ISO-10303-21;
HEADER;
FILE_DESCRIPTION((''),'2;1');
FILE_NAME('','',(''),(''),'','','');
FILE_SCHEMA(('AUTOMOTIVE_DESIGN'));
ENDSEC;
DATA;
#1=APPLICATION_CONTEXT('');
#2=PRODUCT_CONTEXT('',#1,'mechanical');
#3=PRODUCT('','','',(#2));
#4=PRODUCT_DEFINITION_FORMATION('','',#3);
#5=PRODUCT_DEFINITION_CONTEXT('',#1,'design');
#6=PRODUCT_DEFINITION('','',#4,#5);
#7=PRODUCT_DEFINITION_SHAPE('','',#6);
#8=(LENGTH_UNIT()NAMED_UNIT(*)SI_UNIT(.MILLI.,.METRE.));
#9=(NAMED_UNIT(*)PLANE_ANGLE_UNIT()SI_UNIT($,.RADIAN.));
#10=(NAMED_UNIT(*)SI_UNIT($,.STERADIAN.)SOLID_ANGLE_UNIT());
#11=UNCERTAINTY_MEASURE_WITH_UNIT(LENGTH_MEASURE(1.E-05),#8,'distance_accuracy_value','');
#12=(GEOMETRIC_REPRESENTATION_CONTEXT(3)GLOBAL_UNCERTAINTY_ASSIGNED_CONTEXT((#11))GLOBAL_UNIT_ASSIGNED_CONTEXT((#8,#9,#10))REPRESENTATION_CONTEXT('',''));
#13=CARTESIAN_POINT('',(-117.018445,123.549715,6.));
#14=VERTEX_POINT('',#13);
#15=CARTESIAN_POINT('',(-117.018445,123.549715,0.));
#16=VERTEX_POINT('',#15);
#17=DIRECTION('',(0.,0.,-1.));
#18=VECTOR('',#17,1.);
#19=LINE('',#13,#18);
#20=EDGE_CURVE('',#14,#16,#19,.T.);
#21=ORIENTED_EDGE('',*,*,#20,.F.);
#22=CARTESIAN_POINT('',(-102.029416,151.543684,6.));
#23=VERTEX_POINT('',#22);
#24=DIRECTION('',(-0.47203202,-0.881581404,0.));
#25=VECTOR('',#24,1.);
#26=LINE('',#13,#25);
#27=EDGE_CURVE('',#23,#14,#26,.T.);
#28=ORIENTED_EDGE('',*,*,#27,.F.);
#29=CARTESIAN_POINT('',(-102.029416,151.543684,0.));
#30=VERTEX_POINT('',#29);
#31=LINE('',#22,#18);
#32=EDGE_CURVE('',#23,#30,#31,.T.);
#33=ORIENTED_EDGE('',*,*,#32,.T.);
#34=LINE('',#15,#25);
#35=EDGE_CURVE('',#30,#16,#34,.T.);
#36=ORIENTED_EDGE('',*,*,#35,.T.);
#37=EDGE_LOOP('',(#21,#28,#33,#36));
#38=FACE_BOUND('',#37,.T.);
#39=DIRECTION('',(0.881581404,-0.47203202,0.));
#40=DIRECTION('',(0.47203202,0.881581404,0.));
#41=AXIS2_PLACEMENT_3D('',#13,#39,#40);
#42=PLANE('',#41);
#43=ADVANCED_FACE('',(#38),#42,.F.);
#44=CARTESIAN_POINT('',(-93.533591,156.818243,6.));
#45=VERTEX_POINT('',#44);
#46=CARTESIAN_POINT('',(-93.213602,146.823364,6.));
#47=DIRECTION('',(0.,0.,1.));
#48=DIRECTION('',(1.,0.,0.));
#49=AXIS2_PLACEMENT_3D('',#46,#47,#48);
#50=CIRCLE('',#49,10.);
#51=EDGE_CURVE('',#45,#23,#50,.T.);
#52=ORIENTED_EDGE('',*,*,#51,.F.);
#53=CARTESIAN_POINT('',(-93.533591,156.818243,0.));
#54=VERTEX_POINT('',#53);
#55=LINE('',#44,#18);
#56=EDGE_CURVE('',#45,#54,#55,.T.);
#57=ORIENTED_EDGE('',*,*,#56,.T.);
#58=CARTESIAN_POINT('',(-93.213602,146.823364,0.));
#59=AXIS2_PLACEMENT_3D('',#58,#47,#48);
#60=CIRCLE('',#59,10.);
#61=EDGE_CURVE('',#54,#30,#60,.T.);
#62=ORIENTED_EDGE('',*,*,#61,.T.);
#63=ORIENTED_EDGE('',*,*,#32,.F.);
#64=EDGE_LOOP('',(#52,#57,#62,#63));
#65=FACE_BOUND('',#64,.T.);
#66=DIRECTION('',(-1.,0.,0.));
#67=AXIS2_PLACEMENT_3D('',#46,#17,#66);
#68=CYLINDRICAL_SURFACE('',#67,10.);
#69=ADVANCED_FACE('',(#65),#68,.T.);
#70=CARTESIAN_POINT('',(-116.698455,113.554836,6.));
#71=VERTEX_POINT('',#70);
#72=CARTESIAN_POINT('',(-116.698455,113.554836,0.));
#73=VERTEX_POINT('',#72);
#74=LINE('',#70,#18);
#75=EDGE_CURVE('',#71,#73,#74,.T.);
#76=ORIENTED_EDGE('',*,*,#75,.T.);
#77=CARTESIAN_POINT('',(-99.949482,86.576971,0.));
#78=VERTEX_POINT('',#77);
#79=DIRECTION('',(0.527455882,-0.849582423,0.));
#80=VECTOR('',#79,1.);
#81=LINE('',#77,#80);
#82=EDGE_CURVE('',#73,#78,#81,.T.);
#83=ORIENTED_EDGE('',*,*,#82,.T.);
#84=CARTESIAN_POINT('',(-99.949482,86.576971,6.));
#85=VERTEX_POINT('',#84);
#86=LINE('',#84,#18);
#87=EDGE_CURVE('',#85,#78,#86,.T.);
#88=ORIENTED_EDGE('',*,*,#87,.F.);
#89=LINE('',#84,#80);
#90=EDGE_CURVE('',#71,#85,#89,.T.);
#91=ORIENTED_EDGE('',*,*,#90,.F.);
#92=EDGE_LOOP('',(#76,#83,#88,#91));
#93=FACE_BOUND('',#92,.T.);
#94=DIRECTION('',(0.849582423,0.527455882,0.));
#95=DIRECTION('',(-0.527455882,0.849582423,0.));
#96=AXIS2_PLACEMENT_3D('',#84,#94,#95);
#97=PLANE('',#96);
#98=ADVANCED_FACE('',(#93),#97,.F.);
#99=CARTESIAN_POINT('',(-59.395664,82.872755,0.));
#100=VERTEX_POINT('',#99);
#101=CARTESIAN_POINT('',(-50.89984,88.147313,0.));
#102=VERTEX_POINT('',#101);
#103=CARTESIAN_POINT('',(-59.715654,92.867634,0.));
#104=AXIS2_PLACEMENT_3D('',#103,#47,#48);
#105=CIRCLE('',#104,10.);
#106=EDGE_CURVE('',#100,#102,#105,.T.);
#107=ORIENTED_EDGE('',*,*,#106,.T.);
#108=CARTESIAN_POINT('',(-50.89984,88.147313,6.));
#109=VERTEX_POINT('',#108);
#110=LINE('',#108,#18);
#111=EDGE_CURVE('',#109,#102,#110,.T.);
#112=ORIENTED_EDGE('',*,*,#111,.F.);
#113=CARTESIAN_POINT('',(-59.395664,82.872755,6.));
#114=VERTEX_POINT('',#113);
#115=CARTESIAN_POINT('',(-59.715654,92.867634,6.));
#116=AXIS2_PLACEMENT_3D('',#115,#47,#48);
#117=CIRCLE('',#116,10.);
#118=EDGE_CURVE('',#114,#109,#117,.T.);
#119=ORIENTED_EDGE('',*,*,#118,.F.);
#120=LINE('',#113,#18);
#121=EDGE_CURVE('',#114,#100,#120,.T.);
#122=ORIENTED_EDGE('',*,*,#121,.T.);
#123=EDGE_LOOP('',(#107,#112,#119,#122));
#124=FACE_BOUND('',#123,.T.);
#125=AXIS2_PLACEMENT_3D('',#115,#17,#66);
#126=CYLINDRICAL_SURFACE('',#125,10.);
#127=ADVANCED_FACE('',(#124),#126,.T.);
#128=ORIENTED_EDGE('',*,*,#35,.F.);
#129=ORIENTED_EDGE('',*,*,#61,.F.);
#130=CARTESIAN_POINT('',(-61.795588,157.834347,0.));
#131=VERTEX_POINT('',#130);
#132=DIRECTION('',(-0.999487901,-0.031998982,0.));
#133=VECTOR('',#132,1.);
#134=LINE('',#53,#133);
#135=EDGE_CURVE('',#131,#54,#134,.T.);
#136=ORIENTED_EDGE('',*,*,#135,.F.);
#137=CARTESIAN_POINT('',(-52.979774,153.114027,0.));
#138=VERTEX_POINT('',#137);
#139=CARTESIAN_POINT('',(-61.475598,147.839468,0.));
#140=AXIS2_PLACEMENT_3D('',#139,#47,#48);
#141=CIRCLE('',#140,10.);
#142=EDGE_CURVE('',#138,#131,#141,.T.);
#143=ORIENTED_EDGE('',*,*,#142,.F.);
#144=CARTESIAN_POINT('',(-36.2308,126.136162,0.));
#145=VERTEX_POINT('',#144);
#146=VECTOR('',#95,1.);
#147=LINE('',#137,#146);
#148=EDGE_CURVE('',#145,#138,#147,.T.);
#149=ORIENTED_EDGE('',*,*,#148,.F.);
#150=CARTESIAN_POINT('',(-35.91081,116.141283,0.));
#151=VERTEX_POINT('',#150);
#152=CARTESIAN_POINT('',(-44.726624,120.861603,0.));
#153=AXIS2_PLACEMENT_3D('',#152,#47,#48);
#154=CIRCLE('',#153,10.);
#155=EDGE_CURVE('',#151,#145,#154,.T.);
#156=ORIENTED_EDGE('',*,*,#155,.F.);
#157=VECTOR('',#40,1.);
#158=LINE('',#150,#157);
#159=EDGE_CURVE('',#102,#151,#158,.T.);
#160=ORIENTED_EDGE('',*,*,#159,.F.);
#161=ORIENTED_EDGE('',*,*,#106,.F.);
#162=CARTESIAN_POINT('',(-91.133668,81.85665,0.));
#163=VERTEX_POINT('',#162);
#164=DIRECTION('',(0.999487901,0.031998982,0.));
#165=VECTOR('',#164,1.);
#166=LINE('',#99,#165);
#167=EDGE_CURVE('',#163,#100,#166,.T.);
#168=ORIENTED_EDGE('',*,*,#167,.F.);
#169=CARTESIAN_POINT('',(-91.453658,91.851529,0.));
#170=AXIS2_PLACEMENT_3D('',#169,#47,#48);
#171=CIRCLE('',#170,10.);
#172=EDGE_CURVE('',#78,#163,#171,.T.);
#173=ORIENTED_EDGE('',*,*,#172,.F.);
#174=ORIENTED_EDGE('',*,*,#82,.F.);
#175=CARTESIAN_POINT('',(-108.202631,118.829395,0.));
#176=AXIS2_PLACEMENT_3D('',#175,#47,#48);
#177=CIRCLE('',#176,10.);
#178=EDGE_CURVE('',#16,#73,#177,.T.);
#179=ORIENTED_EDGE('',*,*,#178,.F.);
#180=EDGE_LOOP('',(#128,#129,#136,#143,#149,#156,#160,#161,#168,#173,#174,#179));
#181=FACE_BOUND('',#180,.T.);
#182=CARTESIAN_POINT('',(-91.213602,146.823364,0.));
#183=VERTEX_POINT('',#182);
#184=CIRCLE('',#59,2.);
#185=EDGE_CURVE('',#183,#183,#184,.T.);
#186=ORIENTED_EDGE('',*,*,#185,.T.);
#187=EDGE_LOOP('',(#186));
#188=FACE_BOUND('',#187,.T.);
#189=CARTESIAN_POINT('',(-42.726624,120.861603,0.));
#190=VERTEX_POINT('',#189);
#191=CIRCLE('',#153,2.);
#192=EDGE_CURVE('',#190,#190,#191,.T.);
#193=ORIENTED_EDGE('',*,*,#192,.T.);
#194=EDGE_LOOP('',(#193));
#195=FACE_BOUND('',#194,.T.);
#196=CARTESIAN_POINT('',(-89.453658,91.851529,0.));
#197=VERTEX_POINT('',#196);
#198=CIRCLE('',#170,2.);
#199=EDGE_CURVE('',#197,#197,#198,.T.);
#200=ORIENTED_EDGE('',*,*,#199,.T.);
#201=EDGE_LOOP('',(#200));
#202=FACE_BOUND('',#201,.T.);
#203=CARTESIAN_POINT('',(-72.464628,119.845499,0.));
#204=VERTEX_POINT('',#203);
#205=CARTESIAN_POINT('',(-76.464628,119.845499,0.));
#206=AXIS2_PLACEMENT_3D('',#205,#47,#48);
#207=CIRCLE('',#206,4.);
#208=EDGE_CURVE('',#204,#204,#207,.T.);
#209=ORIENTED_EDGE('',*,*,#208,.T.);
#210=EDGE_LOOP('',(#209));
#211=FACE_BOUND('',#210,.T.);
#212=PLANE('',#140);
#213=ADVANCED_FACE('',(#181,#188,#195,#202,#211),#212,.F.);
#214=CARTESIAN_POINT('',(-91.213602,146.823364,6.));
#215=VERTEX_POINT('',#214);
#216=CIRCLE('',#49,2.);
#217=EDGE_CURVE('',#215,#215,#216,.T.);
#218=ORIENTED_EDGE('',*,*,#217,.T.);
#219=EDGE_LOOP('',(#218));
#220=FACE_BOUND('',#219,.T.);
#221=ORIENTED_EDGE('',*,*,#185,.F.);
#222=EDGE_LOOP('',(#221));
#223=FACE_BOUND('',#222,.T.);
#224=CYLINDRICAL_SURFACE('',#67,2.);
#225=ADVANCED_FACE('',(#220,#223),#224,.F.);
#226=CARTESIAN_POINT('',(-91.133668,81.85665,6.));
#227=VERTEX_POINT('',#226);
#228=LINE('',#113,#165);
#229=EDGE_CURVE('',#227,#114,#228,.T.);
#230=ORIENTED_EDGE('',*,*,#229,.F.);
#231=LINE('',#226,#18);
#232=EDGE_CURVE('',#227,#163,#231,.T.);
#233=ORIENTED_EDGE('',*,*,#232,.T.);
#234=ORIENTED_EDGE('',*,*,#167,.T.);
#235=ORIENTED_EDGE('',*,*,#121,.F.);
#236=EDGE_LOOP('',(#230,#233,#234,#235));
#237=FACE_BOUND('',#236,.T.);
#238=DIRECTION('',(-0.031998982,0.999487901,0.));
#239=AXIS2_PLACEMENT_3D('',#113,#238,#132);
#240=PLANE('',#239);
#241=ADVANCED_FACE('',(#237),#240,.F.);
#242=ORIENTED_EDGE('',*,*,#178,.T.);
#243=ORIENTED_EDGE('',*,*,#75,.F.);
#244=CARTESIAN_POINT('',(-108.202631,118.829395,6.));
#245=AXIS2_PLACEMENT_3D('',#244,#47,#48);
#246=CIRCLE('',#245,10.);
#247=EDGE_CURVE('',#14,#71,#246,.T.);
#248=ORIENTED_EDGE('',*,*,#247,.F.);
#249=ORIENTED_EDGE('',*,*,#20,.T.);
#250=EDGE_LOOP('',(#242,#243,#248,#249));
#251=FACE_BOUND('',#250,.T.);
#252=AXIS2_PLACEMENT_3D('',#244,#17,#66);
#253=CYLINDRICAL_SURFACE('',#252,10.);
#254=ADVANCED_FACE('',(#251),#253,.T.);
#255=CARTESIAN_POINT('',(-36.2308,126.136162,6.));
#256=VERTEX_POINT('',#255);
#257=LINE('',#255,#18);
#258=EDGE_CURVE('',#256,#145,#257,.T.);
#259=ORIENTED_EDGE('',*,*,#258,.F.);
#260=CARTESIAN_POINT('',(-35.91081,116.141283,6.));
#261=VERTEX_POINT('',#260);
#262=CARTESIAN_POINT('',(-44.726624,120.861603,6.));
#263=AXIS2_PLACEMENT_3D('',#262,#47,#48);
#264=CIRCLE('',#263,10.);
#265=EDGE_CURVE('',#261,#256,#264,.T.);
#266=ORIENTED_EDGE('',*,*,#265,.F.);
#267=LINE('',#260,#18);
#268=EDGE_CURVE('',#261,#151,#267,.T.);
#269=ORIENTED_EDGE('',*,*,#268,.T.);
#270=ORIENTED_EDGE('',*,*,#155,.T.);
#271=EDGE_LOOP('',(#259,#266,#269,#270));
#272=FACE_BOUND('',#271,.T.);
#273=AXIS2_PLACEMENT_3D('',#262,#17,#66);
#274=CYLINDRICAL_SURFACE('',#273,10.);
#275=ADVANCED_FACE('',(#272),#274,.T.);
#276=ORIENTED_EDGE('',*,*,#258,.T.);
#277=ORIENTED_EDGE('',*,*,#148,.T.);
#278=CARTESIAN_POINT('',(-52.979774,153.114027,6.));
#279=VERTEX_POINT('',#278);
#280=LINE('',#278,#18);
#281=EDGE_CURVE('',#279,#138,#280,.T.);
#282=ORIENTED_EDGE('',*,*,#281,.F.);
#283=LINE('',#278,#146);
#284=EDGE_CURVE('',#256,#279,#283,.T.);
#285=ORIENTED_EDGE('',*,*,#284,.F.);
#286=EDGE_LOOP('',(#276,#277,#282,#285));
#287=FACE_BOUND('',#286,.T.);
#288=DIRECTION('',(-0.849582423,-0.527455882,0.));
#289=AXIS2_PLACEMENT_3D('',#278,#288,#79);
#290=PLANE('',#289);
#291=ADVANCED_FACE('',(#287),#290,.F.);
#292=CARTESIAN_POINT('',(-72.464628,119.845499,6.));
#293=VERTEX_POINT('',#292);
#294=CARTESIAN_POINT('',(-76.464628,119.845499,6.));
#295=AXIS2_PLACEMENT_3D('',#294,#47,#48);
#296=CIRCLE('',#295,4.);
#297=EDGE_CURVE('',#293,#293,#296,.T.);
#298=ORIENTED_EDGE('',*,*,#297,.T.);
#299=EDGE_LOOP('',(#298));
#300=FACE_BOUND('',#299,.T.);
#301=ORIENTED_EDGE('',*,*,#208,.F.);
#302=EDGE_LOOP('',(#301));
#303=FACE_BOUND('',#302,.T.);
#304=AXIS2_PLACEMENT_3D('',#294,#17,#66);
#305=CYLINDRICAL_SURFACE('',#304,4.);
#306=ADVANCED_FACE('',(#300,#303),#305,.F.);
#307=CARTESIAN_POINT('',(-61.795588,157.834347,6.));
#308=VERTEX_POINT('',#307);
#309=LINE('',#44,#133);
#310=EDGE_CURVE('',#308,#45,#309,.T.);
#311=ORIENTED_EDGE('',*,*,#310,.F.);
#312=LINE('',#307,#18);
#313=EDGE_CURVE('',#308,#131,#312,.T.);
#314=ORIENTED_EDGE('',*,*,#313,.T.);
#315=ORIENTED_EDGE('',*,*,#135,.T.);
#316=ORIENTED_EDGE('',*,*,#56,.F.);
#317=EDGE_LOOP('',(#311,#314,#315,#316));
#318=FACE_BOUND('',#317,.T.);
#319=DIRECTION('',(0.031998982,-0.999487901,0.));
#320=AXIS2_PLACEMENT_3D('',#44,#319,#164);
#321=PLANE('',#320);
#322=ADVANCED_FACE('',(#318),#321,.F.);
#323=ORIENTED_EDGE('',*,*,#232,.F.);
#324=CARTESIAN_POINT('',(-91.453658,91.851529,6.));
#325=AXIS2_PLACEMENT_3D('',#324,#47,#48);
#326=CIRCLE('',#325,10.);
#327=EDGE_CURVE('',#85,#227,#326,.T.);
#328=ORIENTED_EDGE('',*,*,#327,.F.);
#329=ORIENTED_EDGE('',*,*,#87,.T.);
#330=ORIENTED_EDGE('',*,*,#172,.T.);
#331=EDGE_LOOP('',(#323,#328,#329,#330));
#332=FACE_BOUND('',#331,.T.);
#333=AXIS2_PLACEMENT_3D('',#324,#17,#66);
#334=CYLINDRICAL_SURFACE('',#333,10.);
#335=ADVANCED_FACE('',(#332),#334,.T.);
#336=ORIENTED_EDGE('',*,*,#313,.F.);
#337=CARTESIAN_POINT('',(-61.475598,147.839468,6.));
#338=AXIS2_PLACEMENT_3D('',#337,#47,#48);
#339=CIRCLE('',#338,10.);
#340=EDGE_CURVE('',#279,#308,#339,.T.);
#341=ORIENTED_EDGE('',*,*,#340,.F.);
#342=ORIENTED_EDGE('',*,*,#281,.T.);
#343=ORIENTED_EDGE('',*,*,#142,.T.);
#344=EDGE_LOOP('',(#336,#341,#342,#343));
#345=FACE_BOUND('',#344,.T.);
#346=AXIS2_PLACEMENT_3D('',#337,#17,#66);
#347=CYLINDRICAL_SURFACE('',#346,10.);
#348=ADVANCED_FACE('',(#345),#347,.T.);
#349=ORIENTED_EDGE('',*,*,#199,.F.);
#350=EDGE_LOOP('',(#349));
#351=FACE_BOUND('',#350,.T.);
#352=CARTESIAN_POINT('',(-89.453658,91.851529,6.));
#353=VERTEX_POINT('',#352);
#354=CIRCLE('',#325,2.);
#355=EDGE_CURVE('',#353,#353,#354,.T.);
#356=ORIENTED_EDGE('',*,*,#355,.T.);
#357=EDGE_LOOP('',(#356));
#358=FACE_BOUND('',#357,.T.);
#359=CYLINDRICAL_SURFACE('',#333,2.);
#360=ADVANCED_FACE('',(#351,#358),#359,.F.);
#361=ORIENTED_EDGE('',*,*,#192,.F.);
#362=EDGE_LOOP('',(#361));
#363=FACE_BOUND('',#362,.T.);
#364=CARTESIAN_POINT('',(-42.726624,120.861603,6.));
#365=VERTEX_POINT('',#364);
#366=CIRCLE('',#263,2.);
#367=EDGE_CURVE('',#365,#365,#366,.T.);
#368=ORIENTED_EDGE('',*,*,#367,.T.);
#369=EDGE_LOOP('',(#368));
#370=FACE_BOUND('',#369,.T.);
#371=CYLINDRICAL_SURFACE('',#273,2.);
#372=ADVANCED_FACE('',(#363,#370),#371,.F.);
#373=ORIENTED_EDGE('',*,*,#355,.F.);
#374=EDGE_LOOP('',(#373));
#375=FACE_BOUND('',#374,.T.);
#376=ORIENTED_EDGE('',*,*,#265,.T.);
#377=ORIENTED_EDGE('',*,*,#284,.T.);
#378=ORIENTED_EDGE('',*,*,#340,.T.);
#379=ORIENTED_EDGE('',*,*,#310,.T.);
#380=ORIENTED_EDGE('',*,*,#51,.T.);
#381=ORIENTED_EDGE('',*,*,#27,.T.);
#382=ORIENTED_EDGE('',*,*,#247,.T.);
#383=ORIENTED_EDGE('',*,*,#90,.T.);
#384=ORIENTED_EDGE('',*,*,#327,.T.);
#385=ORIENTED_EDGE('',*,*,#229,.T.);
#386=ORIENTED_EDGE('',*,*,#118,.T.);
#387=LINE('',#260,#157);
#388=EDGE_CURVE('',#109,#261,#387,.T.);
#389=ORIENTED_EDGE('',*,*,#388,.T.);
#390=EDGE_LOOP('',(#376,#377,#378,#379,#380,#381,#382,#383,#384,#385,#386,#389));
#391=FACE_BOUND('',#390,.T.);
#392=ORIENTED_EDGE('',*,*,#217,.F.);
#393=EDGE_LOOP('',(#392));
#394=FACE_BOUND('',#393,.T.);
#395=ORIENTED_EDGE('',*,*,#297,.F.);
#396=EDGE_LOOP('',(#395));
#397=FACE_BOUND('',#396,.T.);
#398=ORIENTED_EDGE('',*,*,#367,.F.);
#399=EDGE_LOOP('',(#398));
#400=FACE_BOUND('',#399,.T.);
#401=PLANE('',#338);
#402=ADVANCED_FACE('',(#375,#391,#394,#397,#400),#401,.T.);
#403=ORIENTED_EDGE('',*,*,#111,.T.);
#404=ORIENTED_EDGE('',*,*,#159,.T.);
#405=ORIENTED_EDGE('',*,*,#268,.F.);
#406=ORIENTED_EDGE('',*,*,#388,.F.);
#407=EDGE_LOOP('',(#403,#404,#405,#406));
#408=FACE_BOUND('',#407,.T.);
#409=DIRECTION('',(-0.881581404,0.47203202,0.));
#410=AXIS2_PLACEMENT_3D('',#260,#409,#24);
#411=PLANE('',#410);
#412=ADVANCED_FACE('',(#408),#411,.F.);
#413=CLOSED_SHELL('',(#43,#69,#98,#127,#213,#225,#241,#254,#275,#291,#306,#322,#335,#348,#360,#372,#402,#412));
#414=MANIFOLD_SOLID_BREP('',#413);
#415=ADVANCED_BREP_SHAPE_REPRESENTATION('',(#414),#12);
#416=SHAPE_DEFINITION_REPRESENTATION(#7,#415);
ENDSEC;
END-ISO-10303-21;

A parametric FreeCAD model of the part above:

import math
import FreeCAD as App
import Part
import Sketcher

V = App.Vector
Q = App.Units.Quantity

doc = App.newDocument("Part")
body = doc.addObject("PartDesign::Body", "Body")

sketch1 = body.newObject("Sketcher::SketchObject", "Sketch")
sketch1.AttachmentSupport = (doc.getObject("XY_Plane"), [""])
sketch1.MapMode = "FlatFace"
sketch1.addGeometry([
    Part.LineSegment(V(-36.2308, 126.136162, 0), V(-52.979774, 153.114027, 0)),
    Part.ArcOfCircle(Part.Circle(V(-61.475598, 147.839468, 0), V(0, 0, 1), 10), math.radians(31.83372), math.radians(91.83372)),
    Part.LineSegment(V(-61.795588, 157.834347, 0), V(-93.533591, 156.818243, 0)),
    Part.ArcOfCircle(Part.Circle(V(-93.213602, 146.823364, 0), V(0, 0, 1), 10), math.radians(91.83372), math.radians(151.83372)),
    Part.LineSegment(V(-102.029416, 151.543684, 0), V(-117.018445, 123.549715, 0)),
    Part.ArcOfCircle(Part.Circle(V(-108.202631, 118.829395, 0), V(0, 0, 1), 10), math.radians(151.83372), math.radians(211.83372)),
    Part.LineSegment(V(-116.698455, 113.554836, 0), V(-99.949482, 86.576971, 0)),
    Part.ArcOfCircle(Part.Circle(V(-91.453658, 91.851529, 0), V(0, 0, 1), 10), math.radians(-148.16628), math.radians(-88.16628)),
    Part.LineSegment(V(-91.133668, 81.85665, 0), V(-59.395664, 82.872755, 0)),
    Part.ArcOfCircle(Part.Circle(V(-59.715654, 92.867634, 0), V(0, 0, 1), 10), math.radians(-88.16628), math.radians(-28.16628)),
    Part.LineSegment(V(-50.89984, 88.147313, 0), V(-35.91081, 116.141283, 0)),
    Part.ArcOfCircle(Part.Circle(V(-44.726624, 120.861603, 0), V(0, 0, 1), 10), math.radians(-28.16628), math.radians(31.83372)),
    Part.Circle(V(-91.453658, 91.851529, 0), V(0, 0, 1), 2),
    Part.Circle(V(-44.726624, 120.861603, 0), V(0, 0, 1), 2),
    Part.Circle(V(-76.464628, 119.845499, 0), V(0, 0, 1), 4),
    Part.Circle(V(-93.213602, 146.823364, 0), V(0, 0, 1), 2),
], False)
sketch1.addConstraint([
    Sketcher.Constraint("Tangent", 0, 2, 1, 1),
    Sketcher.Constraint("Tangent", 1, 2, 2, 1),
    Sketcher.Constraint("Tangent", 2, 2, 3, 1),
    Sketcher.Constraint("Tangent", 3, 2, 4, 1),
    Sketcher.Constraint("Tangent", 4, 2, 5, 1),
    Sketcher.Constraint("Tangent", 5, 2, 6, 1),
    Sketcher.Constraint("Tangent", 6, 2, 7, 1),
    Sketcher.Constraint("Tangent", 7, 2, 8, 1),
    Sketcher.Constraint("Tangent", 8, 2, 9, 1),
    Sketcher.Constraint("Tangent", 9, 2, 10, 1),
    Sketcher.Constraint("Tangent", 10, 2, 11, 1),
    Sketcher.Constraint("Tangent", 11, 2, 0, 1),
    Sketcher.Constraint("Coincident", 12, 3, 7, 3),
    Sketcher.Constraint("Coincident", 13, 3, 11, 3),
    Sketcher.Constraint("Coincident", 15, 3, 3, 3),
    Sketcher.Constraint("Equal", 1, 3),
    Sketcher.Constraint("Equal", 3, 5),
    Sketcher.Constraint("Equal", 5, 7),
    Sketcher.Constraint("Equal", 7, 9),
    Sketcher.Constraint("Equal", 9, 11),
    Sketcher.Constraint("Equal", 12, 13),
    Sketcher.Constraint("Equal", 13, 15),
    Sketcher.Constraint("Parallel", 0, 6),
    Sketcher.Constraint("Parallel", 2, 8),
    Sketcher.Constraint("Parallel", 4, 10),
    Sketcher.Constraint("Equal", 0, 2),
    Sketcher.Constraint("Equal", 2, 4),
    Sketcher.Constraint("Equal", 4, 6),
    Sketcher.Constraint("Diameter", 12, Q("4 mm")),
    Sketcher.Constraint("Diameter", 14, Q("8 mm")),
    Sketcher.Constraint("Radius", 1, Q("10 mm")),
    Sketcher.Constraint("DistanceX", 1, 3, -1, 1, Q("61.475598 mm")),
    Sketcher.Constraint("DistanceX", 3, 3, -1, 1, Q("93.213602 mm")),
    Sketcher.Constraint("DistanceY", -1, 1, 14, 3, Q("119.845499 mm")),
    Sketcher.Constraint("DistanceX", 11, 2, -1, 1, Q("36.2308 mm")),
    Sketcher.Constraint("DistanceY", -1, 1, 1, 3, Q("147.839468 mm")),
    Sketcher.Constraint("DistanceX", 5, 3, -1, 1, Q("108.202631 mm")),
    Sketcher.Constraint("DistanceY", -1, 1, 7, 3, Q("91.851529 mm")),
    Sketcher.Constraint("DistanceX", 7, 3, 14, 3, Q("14.98903 mm")),
])
pad1 = body.newObject("PartDesign::Pad", "Pad")
pad1.Profile = sketch1
pad1.Length = 6

doc.recompute()
